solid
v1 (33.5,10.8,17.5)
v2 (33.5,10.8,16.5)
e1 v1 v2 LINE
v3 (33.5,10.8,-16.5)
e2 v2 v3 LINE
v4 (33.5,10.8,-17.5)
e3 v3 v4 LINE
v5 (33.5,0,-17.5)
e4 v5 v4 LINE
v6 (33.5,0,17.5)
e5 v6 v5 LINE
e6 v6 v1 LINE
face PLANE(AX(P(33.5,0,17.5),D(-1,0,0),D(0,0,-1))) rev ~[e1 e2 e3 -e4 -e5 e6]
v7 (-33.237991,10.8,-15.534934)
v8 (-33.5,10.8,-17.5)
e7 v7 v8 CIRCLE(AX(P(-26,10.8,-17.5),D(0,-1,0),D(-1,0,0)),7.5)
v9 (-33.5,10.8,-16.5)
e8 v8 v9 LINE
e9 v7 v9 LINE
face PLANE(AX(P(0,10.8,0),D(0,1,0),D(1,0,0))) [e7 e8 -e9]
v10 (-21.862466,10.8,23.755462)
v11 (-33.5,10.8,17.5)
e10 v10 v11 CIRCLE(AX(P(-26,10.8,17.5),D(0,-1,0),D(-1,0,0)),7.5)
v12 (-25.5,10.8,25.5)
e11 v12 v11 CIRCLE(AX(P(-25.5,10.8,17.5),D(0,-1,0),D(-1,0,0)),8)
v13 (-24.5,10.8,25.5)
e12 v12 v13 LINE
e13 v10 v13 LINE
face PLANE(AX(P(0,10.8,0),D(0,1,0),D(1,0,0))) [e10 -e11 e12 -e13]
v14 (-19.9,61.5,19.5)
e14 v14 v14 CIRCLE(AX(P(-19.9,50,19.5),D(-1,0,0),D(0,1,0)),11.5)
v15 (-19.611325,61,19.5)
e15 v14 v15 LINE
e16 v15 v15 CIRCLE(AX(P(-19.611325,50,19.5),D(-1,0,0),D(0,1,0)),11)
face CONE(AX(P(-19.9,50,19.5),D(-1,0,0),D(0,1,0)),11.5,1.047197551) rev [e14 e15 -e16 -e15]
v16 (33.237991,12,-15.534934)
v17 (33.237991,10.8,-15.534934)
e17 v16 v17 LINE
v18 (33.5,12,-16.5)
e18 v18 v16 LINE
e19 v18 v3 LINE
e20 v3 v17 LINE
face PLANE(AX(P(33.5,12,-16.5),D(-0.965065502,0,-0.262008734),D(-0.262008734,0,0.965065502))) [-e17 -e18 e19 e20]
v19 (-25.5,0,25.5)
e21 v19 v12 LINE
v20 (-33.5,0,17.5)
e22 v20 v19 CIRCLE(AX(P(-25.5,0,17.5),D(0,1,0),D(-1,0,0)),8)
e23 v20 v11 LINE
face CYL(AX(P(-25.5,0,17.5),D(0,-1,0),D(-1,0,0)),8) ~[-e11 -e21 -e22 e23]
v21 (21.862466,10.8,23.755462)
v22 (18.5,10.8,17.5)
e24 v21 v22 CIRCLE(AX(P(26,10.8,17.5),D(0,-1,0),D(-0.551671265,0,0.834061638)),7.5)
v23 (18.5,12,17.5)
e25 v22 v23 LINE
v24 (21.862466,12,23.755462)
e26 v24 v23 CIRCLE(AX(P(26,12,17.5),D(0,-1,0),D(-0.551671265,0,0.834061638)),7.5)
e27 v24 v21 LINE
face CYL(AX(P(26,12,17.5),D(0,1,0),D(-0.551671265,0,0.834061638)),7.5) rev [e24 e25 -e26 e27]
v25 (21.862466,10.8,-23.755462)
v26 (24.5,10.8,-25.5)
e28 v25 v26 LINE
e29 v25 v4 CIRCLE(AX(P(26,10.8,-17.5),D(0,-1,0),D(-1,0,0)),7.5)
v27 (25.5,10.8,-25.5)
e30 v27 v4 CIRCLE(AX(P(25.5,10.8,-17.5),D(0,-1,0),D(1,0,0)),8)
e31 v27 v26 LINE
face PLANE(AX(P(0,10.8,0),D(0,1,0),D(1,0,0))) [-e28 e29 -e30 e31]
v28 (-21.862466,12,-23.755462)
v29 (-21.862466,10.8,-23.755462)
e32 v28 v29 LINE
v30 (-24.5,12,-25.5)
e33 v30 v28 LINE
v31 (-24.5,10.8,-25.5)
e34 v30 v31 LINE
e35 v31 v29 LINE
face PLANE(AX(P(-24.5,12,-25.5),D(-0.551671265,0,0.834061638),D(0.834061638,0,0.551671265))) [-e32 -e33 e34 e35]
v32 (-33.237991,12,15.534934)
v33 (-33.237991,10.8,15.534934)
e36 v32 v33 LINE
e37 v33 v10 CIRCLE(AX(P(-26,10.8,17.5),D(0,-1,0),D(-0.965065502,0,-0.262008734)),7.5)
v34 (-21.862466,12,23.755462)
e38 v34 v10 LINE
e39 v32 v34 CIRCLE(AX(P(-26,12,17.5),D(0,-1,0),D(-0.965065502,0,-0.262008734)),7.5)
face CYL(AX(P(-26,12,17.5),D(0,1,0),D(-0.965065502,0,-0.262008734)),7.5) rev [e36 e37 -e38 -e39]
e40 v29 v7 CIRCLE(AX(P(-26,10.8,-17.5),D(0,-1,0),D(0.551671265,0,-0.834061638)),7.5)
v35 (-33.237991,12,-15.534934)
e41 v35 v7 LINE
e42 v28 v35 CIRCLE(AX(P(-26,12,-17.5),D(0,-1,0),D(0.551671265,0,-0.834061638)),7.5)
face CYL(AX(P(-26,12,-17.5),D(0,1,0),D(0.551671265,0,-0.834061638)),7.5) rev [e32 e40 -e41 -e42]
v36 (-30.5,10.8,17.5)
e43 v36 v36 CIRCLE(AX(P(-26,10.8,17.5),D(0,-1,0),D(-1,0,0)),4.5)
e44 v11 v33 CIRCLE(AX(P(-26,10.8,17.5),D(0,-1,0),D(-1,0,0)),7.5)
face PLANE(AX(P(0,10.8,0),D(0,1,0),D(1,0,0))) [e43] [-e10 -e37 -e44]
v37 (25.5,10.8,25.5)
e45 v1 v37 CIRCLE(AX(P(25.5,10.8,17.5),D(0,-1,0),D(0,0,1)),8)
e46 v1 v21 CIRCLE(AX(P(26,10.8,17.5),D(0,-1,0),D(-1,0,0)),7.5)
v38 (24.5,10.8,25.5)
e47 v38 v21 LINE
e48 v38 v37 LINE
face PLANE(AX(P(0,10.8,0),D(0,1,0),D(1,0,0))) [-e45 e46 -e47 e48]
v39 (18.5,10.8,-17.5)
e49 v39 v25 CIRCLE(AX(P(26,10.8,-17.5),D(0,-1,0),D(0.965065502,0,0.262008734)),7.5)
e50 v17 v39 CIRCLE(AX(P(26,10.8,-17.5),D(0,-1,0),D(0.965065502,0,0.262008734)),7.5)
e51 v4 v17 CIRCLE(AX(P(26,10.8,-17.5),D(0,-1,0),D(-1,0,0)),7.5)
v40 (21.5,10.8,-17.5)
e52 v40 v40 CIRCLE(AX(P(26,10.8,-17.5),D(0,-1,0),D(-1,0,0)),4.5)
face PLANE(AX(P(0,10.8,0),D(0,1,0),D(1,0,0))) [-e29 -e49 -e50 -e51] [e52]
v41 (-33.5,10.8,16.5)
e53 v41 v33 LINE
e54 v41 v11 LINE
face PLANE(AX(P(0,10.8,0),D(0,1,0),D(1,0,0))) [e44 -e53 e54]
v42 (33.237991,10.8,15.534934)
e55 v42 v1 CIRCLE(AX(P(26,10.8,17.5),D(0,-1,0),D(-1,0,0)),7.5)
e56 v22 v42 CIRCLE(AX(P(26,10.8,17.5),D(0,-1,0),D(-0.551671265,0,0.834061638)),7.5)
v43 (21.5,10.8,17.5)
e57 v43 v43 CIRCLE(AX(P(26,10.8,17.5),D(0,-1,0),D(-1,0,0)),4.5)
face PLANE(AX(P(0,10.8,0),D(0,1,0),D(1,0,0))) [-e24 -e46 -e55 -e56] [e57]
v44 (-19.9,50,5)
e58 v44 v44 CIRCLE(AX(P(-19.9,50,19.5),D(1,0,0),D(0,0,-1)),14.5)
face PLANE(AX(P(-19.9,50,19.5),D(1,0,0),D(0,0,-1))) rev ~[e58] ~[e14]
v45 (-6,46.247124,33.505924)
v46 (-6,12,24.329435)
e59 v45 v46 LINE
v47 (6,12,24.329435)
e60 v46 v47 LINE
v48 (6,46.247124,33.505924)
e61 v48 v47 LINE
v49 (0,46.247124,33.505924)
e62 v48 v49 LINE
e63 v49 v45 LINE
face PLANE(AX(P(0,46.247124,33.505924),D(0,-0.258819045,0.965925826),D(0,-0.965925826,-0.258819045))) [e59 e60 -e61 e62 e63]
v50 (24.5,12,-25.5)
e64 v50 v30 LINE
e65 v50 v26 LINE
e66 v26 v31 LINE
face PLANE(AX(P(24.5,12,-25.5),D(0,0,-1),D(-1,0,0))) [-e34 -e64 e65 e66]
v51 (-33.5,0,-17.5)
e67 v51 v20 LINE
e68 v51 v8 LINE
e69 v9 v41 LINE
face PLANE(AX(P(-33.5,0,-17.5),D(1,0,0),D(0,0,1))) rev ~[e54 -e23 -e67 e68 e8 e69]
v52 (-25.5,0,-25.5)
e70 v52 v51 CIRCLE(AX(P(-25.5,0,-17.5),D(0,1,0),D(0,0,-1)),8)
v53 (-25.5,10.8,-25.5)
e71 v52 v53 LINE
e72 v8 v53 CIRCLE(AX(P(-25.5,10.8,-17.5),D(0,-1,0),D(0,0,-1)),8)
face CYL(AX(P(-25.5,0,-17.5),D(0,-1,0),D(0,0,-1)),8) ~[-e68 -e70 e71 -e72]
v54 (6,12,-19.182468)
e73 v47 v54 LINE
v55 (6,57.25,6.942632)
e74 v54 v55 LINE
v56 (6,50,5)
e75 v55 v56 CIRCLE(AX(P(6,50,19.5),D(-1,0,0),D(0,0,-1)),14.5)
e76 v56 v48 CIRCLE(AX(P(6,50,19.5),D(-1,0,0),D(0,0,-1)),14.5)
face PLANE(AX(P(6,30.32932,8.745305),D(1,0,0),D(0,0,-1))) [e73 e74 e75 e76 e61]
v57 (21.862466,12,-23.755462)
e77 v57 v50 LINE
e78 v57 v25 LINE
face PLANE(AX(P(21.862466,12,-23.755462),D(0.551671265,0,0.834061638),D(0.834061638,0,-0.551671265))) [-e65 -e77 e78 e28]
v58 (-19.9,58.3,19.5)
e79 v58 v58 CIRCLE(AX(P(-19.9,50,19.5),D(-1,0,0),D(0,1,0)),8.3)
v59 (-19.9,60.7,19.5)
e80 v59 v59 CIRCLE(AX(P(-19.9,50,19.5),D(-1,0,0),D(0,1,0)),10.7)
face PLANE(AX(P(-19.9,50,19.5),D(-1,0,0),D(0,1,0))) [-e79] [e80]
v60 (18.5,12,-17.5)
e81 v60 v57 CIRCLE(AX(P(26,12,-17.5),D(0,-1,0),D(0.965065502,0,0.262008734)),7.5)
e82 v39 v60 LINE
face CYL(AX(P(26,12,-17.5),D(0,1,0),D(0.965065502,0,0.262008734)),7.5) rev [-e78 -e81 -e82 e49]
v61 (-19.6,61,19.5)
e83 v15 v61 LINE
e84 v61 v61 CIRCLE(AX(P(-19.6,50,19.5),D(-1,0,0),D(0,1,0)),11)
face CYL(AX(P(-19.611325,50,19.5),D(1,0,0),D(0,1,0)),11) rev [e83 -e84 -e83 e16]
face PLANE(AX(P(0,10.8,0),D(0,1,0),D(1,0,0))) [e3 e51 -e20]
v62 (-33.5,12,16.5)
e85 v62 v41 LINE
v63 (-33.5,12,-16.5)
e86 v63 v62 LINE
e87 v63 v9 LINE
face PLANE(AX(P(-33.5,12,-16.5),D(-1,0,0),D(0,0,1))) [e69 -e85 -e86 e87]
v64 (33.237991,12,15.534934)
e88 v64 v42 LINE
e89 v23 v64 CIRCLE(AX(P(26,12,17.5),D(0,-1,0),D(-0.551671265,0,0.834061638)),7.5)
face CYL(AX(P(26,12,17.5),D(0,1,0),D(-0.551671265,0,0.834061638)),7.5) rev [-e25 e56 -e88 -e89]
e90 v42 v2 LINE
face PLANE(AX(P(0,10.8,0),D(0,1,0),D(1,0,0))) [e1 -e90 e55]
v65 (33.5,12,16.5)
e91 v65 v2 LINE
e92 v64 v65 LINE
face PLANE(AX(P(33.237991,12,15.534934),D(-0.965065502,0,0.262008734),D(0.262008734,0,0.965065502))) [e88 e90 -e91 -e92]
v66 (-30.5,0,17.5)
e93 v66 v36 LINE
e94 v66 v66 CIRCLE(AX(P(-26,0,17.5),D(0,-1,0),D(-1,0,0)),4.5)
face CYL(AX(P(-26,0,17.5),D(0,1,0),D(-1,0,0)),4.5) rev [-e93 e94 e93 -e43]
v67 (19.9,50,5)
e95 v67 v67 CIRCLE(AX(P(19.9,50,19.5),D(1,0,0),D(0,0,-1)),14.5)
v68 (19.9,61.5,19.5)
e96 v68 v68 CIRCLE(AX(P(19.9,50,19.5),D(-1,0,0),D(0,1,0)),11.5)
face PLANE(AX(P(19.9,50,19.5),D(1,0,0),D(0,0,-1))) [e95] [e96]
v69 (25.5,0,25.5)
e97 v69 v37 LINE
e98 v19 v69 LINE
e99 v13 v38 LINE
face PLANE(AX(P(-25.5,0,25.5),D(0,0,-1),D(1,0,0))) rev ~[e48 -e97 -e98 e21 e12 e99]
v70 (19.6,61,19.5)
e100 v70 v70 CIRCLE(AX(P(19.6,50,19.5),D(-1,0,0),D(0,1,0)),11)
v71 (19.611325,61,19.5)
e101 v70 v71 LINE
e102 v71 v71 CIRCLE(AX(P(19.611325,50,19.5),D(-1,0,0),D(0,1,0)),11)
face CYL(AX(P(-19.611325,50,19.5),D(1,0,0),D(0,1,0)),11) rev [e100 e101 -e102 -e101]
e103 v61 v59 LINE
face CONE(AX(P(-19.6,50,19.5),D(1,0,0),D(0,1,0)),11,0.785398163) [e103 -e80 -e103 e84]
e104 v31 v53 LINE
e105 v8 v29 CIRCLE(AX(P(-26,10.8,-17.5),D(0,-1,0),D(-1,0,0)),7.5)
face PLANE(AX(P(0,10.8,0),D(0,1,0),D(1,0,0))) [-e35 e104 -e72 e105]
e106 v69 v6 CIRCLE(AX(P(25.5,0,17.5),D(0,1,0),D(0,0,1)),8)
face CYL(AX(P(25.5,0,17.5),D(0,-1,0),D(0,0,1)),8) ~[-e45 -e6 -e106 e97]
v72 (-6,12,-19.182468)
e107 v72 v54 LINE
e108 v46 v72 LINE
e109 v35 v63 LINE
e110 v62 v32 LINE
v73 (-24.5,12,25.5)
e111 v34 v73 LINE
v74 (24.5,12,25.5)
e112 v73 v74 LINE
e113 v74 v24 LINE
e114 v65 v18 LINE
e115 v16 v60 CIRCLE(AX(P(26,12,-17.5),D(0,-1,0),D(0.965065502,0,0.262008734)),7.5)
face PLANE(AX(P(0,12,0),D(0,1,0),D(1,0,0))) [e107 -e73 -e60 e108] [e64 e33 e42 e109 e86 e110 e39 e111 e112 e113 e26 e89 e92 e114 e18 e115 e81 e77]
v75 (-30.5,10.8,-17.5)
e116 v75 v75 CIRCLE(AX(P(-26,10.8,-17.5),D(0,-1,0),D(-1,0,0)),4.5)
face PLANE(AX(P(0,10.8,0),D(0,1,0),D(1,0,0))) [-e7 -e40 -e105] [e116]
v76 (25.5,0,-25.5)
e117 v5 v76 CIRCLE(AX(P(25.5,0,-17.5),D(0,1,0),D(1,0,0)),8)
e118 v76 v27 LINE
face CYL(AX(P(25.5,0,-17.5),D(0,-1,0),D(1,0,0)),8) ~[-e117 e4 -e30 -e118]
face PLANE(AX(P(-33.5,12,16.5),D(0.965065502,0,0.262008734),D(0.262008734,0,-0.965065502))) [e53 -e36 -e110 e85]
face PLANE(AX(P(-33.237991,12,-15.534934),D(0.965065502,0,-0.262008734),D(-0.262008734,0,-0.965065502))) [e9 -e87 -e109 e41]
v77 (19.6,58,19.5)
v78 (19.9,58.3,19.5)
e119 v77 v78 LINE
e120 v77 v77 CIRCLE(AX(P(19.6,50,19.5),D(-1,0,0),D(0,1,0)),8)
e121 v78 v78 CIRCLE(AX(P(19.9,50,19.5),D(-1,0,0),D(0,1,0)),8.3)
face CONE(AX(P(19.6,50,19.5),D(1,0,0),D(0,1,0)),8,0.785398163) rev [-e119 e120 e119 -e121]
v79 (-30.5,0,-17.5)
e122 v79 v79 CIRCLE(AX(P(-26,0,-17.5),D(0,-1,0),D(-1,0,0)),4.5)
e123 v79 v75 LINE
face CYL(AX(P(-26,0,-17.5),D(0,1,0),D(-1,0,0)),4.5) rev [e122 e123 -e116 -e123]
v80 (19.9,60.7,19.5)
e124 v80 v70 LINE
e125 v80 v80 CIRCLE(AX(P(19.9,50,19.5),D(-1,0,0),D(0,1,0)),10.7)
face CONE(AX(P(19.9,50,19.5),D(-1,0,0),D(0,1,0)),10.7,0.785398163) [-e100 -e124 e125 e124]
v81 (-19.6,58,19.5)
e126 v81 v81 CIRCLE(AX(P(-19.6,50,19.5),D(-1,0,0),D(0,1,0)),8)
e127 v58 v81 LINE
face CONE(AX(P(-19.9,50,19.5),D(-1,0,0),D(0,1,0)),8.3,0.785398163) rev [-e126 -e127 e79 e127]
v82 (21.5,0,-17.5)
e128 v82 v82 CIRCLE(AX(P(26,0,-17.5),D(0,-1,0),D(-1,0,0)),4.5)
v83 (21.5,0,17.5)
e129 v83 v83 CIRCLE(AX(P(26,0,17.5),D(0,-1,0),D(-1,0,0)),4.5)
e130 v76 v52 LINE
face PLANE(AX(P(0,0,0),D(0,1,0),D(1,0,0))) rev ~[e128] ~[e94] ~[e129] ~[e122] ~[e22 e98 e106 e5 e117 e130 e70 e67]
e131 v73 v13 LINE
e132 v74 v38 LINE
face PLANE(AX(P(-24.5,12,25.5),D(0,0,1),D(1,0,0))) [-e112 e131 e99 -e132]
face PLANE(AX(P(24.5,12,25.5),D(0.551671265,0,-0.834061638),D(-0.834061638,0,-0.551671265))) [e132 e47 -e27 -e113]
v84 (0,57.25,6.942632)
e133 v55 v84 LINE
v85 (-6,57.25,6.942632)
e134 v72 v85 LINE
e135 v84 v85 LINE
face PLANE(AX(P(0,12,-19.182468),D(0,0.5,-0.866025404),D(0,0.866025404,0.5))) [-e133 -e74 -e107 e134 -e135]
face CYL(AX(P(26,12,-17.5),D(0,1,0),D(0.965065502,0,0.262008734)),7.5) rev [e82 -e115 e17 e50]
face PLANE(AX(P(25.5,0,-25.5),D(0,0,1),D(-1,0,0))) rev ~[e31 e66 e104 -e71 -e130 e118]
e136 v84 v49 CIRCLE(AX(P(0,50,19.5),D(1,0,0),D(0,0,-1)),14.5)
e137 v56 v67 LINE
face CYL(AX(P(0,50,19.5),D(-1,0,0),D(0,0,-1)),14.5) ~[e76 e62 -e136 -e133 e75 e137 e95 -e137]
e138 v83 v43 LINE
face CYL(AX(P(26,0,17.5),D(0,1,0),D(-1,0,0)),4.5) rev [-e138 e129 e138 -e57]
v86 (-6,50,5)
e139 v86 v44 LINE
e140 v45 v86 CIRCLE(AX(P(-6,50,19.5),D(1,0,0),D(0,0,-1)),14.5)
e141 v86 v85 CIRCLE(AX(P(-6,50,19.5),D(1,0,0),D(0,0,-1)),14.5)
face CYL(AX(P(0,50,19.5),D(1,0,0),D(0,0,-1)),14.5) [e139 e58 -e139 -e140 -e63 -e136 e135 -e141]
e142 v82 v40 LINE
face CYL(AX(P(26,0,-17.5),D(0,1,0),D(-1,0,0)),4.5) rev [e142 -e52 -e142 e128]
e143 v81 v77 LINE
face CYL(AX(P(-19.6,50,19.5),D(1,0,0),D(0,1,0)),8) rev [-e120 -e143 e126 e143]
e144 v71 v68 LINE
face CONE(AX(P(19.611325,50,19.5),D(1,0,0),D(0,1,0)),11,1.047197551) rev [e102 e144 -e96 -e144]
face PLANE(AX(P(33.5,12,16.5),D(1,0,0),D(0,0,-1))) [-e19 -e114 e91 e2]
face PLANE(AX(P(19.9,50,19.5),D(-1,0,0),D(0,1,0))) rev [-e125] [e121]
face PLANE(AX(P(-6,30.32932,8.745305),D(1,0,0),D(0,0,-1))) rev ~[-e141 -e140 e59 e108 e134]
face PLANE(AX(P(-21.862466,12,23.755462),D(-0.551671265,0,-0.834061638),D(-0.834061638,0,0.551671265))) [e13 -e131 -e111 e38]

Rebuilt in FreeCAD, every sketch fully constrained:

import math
import FreeCAD as App
import Part
import Sketcher
Q = App.Units.Quantity

doc = App.newDocument("Part")
params = doc.addObject("Spreadsheet::Sheet", "Params")
for row, (alias, value) in enumerate([
    ("sketch1_radius", "8 mm"),
    ("sketch1_width", "51 mm"),
    ("sketch1_height", "35 mm"),
    ("pad1_length", "12 mm"),
    ("pad2_length", "6 mm"),
    ("pad2_length2", "6 mm"),
    ("sketch3_diameter", "29 mm"),
    ("pad3_length", "19.9 mm"),
    ("pad3_length2", "19.9 mm"),
    ("sketch4_radius", "7.5 mm"),
    ("sketch4_width", "134 mm"),
    ("sketch4_width2", "49 mm"),
    ("sketch4_height", "102 mm"),
    ("sketch4_height2", "33 mm"),
    ("pocket1_length", "1.2 mm"),
    ("sketch5_width", "3 mm"),
    ("sketch5_height", "12 mm"),
    ("sketch5_width2", "4.5 mm"),
    ("sketch5_height2", "1.2 mm"),
    ("groove_angle", "360 deg"),
    ("sketch6_width", "3 mm"),
    ("sketch6_height", "12 mm"),
    ("sketch6_width2", "4.5 mm"),
    ("sketch6_height2", "1.2 mm"),
    ("groove2_angle", "360 deg"),
    ("sketch7_width", "3 mm"),
    ("sketch7_height", "12 mm"),
    ("sketch7_width2", "4.5 mm"),
    ("sketch7_height2", "1.2 mm"),
    ("groove3_angle", "360 deg"),
    ("sketch8_width", "3 mm"),
    ("sketch8_height", "12 mm"),
    ("sketch8_width2", "4.5 mm"),
    ("sketch8_height2", "1.2 mm"),
    ("groove4_angle", "360 deg"),
    ("sketch9_width", "39.8 mm"),
    ("sketch9_height", "11.5 mm"),
    ("groove5_angle", "360 deg"),
    ("sketch10_width", "39.2 mm"),
    ("sketch10_width2", "39.8 mm"),
    ("sketch10_height", "2.4 mm"),
    ("revolution_angle", "360 deg"),
], start=1):
    params.set(f"A{row}", alias)
    params.set(f"B{row}", "=" + value)
    params.setAlias(f"B{row}", alias)

body = doc.addObject("PartDesign::Body", "Body")

sketch1 = body.newObject("Sketcher::SketchObject", "Sketch")
sketch1.AttachmentSupport = (doc.getObject("XZ_Plane"), [""])
sketch1.MapMode = "FlatFace"
sketch1.addGeometry(Part.LineSegment(App.Vector(-26, 26, 0), App.Vector(26, 26, 0)), False)
sketch1.addGeometry(Part.ArcOfCircle(Part.Circle(App.Vector(25, 17, 0), App.Vector(0, 0, 1), 8), math.radians(0), math.radians(90)), False)
sketch1.addGeometry(Part.LineSegment(App.Vector(34, 18, 0), App.Vector(34, -18, 0)), False)
sketch1.addGeometry(Part.ArcOfCircle(Part.Circle(App.Vector(25, -17, 0), App.Vector(0, 0, 1), 8), math.radians(-90), math.radians(0)), False)
sketch1.addGeometry(Part.LineSegment(App.Vector(26, -26, 0), App.Vector(-26, -26, 0)), False)
sketch1.addGeometry(Part.ArcOfCircle(Part.Circle(App.Vector(-25, -17, 0), App.Vector(0, 0, 1), 8), math.radians(-180), math.radians(-90)), False)
sketch1.addGeometry(Part.LineSegment(App.Vector(-34, -18, 0), App.Vector(-34, 18, 0)), False)
sketch1.addGeometry(Part.ArcOfCircle(Part.Circle(App.Vector(-25, 17, 0), App.Vector(0, 0, 1), 8), math.radians(90), math.radians(180)), False)
sketch1.addConstraint(Sketcher.Constraint("Tangent", 0, 2, 1, 2))
sketch1.addConstraint(Sketcher.Constraint("Tangent", 1, 1, 2, 1))
sketch1.addConstraint(Sketcher.Constraint("Tangent", 2, 2, 3, 2))
sketch1.addConstraint(Sketcher.Constraint("Tangent", 3, 1, 4, 1))
sketch1.addConstraint(Sketcher.Constraint("Tangent", 4, 2, 5, 2))
sketch1.addConstraint(Sketcher.Constraint("Tangent", 5, 1, 6, 1))
sketch1.addConstraint(Sketcher.Constraint("Tangent", 6, 2, 7, 2))
sketch1.addConstraint(Sketcher.Constraint("Tangent", 7, 1, 0, 1))
sketch1.addConstraint(Sketcher.Constraint("Horizontal", 0))
sketch1.addConstraint(Sketcher.Constraint("Vertical", 2))
sketch1.addConstraint(Sketcher.Constraint("Horizontal", 4))
sketch1.addConstraint(Sketcher.Constraint("Vertical", 6))
sketch1.addConstraint(Sketcher.Constraint("Equal", 1, 3))
sketch1.addConstraint(Sketcher.Constraint("Equal", 3, 5))
sketch1.addConstraint(Sketcher.Constraint("Equal", 5, 7))
sketch1.addConstraint(Sketcher.Constraint("Symmetric", 1, 3, 5, 3, -1, 1))
sketch1.addConstraint(Sketcher.Constraint("Radius", 1, 8.0))
sketch1.addConstraint(Sketcher.Constraint("DistanceX", 0, 1, 0, 2, 51.0))
sketch1.addConstraint(Sketcher.Constraint("DistanceY", 2, 2, 2, 1, 35.0))
sketch1.setExpression("Constraints[16]", "Params.sketch1_radius")
sketch1.setExpression("Constraints[17]", "Params.sketch1_width")
sketch1.setExpression("Constraints[18]", "Params.sketch1_height")
pad1 = body.newObject("PartDesign::Pad", "Pad")
pad1.Profile = sketch1
pad1.setExpression("Length", "Params.pad1_length")
pad1.Reversed = True

sketch2 = body.newObject("Sketcher::SketchObject", "Sketch001")
sketch2.AttachmentSupport = (doc.getObject("YZ_Plane"), [""])
sketch2.MapMode = "FlatFace"
sketch2.addGeometry(Part.LineSegment(App.Vector(46, 34, 0), App.Vector(12, 24, 0)), False)
sketch2.addGeometry(Part.LineSegment(App.Vector(12, 24, 0), App.Vector(12, -19, 0)), False)
sketch2.addGeometry(Part.LineSegment(App.Vector(12, -19, 0), App.Vector(57, 7, 0)), False)
sketch2.addGeometry(Part.LineSegment(App.Vector(57, 7, 0), App.Vector(46, 34, 0)), False)
sketch2.addConstraint(Sketcher.Constraint("Coincident", 0, 2, 1, 1))
sketch2.addConstraint(Sketcher.Constraint("Coincident", 1, 2, 2, 1))
sketch2.addConstraint(Sketcher.Constraint("Coincident", 2, 2, 3, 1))
sketch2.addConstraint(Sketcher.Constraint("Coincident", 3, 2, 0, 1))
sketch2.addConstraint(Sketcher.Constraint("Vertical", 1))
sketch2.addConstraint(Sketcher.Constraint("Angle", 0, Q("-165 deg")))
sketch2.addConstraint(Sketcher.Constraint("Angle", 2, Q("30 deg")))
sketch2.addConstraint(Sketcher.Constraint("DistanceX", -1, 1, 0, 2, 12.0))
sketch2.addConstraint(Sketcher.Constraint("Angle", 3, Q("112.5 deg")))
sketch2.addConstraint(Sketcher.Constraint("DistanceX", -1, 1, 2, 2, 57.25))
sketch2.addConstraint(Sketcher.Constraint("Distance", 3, 28.751901))
sketch2.addConstraint(Sketcher.Constraint("DistanceY", 1, 2, -1, 1, 19.182468))
pad2 = body.newObject("PartDesign::Pad", "Pad001")
pad2.Profile = sketch2
pad2.Type = "TwoLengths"
pad2.setExpression("Length", "Params.pad2_length")
pad2.setExpression("Length2", "Params.pad2_length2")

sketch3 = body.newObject("Sketcher::SketchObject", "Sketch002")
sketch3.AttachmentSupport = (doc.getObject("YZ_Plane"), [""])
sketch3.MapMode = "FlatFace"
sketch3.addGeometry(Part.Circle(App.Vector(50, 20, 0), App.Vector(0, 0, 1), 14), False)
sketch3.addConstraint(Sketcher.Constraint("Diameter", 0, 29.0))
sketch3.addConstraint(Sketcher.Constraint("DistanceX", -1, 1, 0, 3, 50.0))
sketch3.addConstraint(Sketcher.Constraint("DistanceY", -1, 1, 0, 3, 19.5))
sketch3.setExpression("Constraints[0]", "Params.sketch3_diameter")
pad3 = body.newObject("PartDesign::Pad", "Pad002")
pad3.Profile = sketch3
pad3.Type = "TwoLengths"
pad3.setExpression("Length", "Params.pad3_length")
pad3.setExpression("Length2", "Params.pad3_length2")

sketch4 = body.newObject("Sketcher::SketchObject", "Sketch003")
sketch4.AttachmentSupport = (doc.getObject("XZ_Plane"), [""])
sketch4.MapMode = "FlatFace"
sketch4.AttachmentOffset = App.Placement(App.Vector(0, 0, -12), App.Rotation())
sketch4.addGeometry(Part.LineSegment(App.Vector(-67, -51, 0), App.Vector(-67, 51, 0)), False)
sketch4.addGeometry(Part.LineSegment(App.Vector(-67, 51, 0), App.Vector(67, 51, 0)), False)
sketch4.addGeometry(Part.LineSegment(App.Vector(67, 51, 0), App.Vector(67, -51, 0)), False)
sketch4.addGeometry(Part.LineSegment(App.Vector(67, -51, 0), App.Vector(-67, -51, 0)), False)
sketch4.addGeometry(Part.LineSegment(App.Vector(-33.5, 16.5, 0), App.Vector(-33.5, -16.5, 0)), False)
sketch4.addGeometry(Part.LineSegment(App.Vector(-33.5, -16.5, 0), App.Vector(-33.2, -15.5, 0)), False)
sketch4.addGeometry(Part.ArcOfCircle(Part.Circle(App.Vector(-26, -17.5, 0), App.Vector(0, 0, 1), 7.5), math.radians(-57), math.radians(165)), False)
sketch4.addGeometry(Part.LineSegment(App.Vector(-21.9, -23.8, 0), App.Vector(-24.5, -25.5, 0)), False)
sketch4.addGeometry(Part.LineSegment(App.Vector(-24.5, -25.5, 0), App.Vector(24.5, -25.5, 0)), False)
sketch4.addGeometry(Part.LineSegment(App.Vector(24.5, -25.5, 0), App.Vector(21.9, -23.8, 0)), False)
sketch4.addGeometry(Part.ArcOfCircle(Part.Circle(App.Vector(26, -17.5, 0), App.Vector(0, 0, 1), 7.5), math.radians(15), math.radians(237)), False)
sketch4.addGeometry(Part.LineSegment(App.Vector(33.2, -15.5, 0), App.Vector(33.5, -16.5, 0)), False)
sketch4.addGeometry(Part.LineSegment(App.Vector(33.5, -16.5, 0), App.Vector(33.5, 16.5, 0)), False)
sketch4.addGeometry(Part.LineSegment(App.Vector(33.5, 16.5, 0), App.Vector(33.2, 15.5, 0)), False)
sketch4.addGeometry(Part.ArcOfCircle(Part.Circle(App.Vector(26, 17.5, 0), App.Vector(0, 0, 1), 7.5), math.radians(123), math.radians(345)), False)
sketch4.addGeometry(Part.LineSegment(App.Vector(21.9, 23.8, 0), App.Vector(24.5, 25.5, 0)), False)
sketch4.addGeometry(Part.LineSegment(App.Vector(24.5, 25.5, 0), App.Vector(-24.5, 25.5, 0)), False)
sketch4.addGeometry(Part.LineSegment(App.Vector(-24.5, 25.5, 0), App.Vector(-21.9, 23.8, 0)), False)
sketch4.addGeometry(Part.ArcOfCircle(Part.Circle(App.Vector(-26, 17.5, 0), App.Vector(0, 0, 1), 7.5), math.radians(-165), math.radians(57)), False)
sketch4.addGeometry(Part.LineSegment(App.Vector(-33.2, 15.5, 0), App.Vector(-33.5, 16.5, 0)), False)
sketch4.addConstraint(Sketcher.Constraint("Coincident", 0, 2, 1, 1))
sketch4.addConstraint(Sketcher.Constraint("Coincident", 1, 2, 2, 1))
sketch4.addConstraint(Sketcher.Constraint("Coincident", 2, 2, 3, 1))
sketch4.addConstraint(Sketcher.Constraint("Coincident", 3, 2, 0, 1))
sketch4.addConstraint(Sketcher.Constraint("Coincident", 4, 2, 5, 1))
sketch4.addConstraint(Sketcher.Constraint("Tangent", 5, 2, 6, 2))
sketch4.addConstraint(Sketcher.Constraint("Tangent", 6, 1, 7, 1))
sketch4.addConstraint(Sketcher.Constraint("Coincident", 7, 2, 8, 1))
sketch4.addConstraint(Sketcher.Constraint("Coincident", 8, 2, 9, 1))
sketch4.addConstraint(Sketcher.Constraint("Tangent", 9, 2, 10, 2))
sketch4.addConstraint(Sketcher.Constraint("Tangent", 10, 1, 11, 1))
sketch4.addConstraint(Sketcher.Constraint("Coincident", 11, 2, 12, 1))
sketch4.addConstraint(Sketcher.Constraint("Coincident", 12, 2, 13, 1))
sketch4.addConstraint(Sketcher.Constraint("Tangent", 13, 2, 14, 2))
sketch4.addConstraint(Sketcher.Constraint("Tangent", 14, 1, 15, 1))
sketch4.addConstraint(Sketcher.Constraint("Coincident", 15, 2, 16, 1))
sketch4.addConstraint(Sketcher.Constraint("Coincident", 16, 2, 17, 1))
sketch4.addConstraint(Sketcher.Constraint("Tangent", 17, 2, 18, 2))
sketch4.addConstraint(Sketcher.Constraint("Tangent", 18, 1, 19, 1))
sketch4.addConstraint(Sketcher.Constraint("Coincident", 19, 2, 4, 1))
sketch4.addConstraint(Sketcher.Constraint("Vertical", 0))
sketch4.addConstraint(Sketcher.Constraint("Horizontal", 1))
sketch4.addConstraint(Sketcher.Constraint("Vertical", 2))
sketch4.addConstraint(Sketcher.Constraint("Horizontal", 3))
sketch4.addConstraint(Sketcher.Constraint("Vertical", 4))
sketch4.addConstraint(Sketcher.Constraint("Horizontal", 8))
sketch4.addConstraint(Sketcher.Constraint("Vertical", 12))
sketch4.addConstraint(Sketcher.Constraint("Horizontal", 16))
sketch4.addConstraint(Sketcher.Constraint("Equal", 6, 10))
sketch4.addConstraint(Sketcher.Constraint("Equal", 10, 14))
sketch4.addConstraint(Sketcher.Constraint("Equal", 14, 18))
sketch4.addConstraint(Sketcher.Constraint("Symmetric", 6, 3, 14, 3, -1, 1))
sketch4.addConstraint(Sketcher.Constraint("Symmetric", 10, 3, 18, 3, -1, 1))
sketch4.addConstraint(Sketcher.Constraint("Symmetric", 0, 2, 2, 2, -1, 1))
sketch4.addConstraint(Sketcher.Constraint("Symmetric", 4, 2, 12, 2, -1, 1))
sketch4.addConstraint(Sketcher.Constraint("Symmetric", 7, 2, 15, 2, -1, 1))
sketch4.addConstraint(Sketcher.Constraint("Symmetric", 6, 3, 10, 3, -2))
sketch4.addConstraint(Sketcher.Constraint("Parallel", 9, 17))
sketch4.addConstraint(Sketcher.Constraint("Parallel", 11, 19))
sketch4.addConstraint(Sketcher.Constraint("Horizontal", 6, 1, 9, 2))
sketch4.addConstraint(Sketcher.Constraint("Horizontal", 5, 2, 10, 1))
sketch4.addConstraint(Sketcher.Constraint("Radius", 6, 7.5))
sketch4.addConstraint(Sketcher.Constraint("DistanceX", 1, 1, 1, 2, 134.0))
sketch4.addConstraint(Sketcher.Constraint("DistanceX", 8, 1, 8, 2, 49.0))
sketch4.addConstraint(Sketcher.Constraint("DistanceY", 0, 1, 0, 2, 102.0))
sketch4.addConstraint(Sketcher.Constraint("DistanceY", 4, 2, 4, 1, 33.0))
sketch4.addConstraint(Sketcher.Constraint("Distance", 5, 1.0))
sketch4.addConstraint(Sketcher.Constraint("DistanceX", 6, 3, -1, 1, 26.0))
sketch4.addConstraint(Sketcher.Constraint("DistanceY", 10, 3, 14, 3, 35.0))
sketch4.addConstraint(Sketcher.Constraint("DistanceY", 7, 2, 6, 3, 8.0))
sketch4.setExpression("Constraints[41]", "Params.sketch4_radius")
sketch4.setExpression("Constraints[42]", "Params.sketch4_width")
sketch4.setExpression("Constraints[43]", "Params.sketch4_width2")
sketch4.setExpression("Constraints[44]", "Params.sketch4_height")
sketch4.setExpression("Constraints[45]", "Params.sketch4_height2")
pocket1 = body.newObject("PartDesign::Pocket", "Pocket")
pocket1.Profile = sketch4
pocket1.setExpression("Length", "Params.pocket1_length")
pocket1.Reversed = True

sketch5 = body.newObject("Sketcher::SketchObject", "Sketch004")
sketch5.AttachmentSupport = (doc.getObject("XY_Plane"), [""])
sketch5.MapMode = "FlatFace"
sketch5.AttachmentOffset = App.Placement(App.Vector(0, 0, 17.5), App.Rotation())
sketch5.addGeometry(Part.LineSegment(App.Vector(-30.5, 0, 0), App.Vector(-26, 0, 0)), False)
sketch5.addGeometry(Part.LineSegment(App.Vector(-26, 0, 0), App.Vector(-26, 12, 0)), False)
sketch5.addGeometry(Part.LineSegment(App.Vector(-26, 12, 0), App.Vector(-33.5, 12, 0)), False)
sketch5.addGeometry(Part.LineSegment(App.Vector(-33.5, 12, 0), App.Vector(-33.5, 10.8, 0)), False)
sketch5.addGeometry(Part.LineSegment(App.Vector(-33.5, 10.8, 0), App.Vector(-30.5, 10.8, 0)), False)
sketch5.addGeometry(Part.LineSegment(App.Vector(-30.5, 10.8, 0), App.Vector(-30.5, 0, 0)), False)
sketch5.addGeometry(Part.LineSegment(App.Vector(-26, 12, 0), App.Vector(-26, 0, 0)), True)
sketch5.addConstraint(Sketcher.Constraint("Coincident", 0, 2, 1, 1))
sketch5.addConstraint(Sketcher.Constraint("Coincident", 1, 2, 2, 1))
sketch5.addConstraint(Sketcher.Constraint("Coincident", 2, 2, 3, 1))
sketch5.addConstraint(Sketcher.Constraint("Coincident", 3, 2, 4, 1))
sketch5.addConstraint(Sketcher.Constraint("Coincident", 4, 2, 5, 1))
sketch5.addConstraint(Sketcher.Constraint("Coincident", 5, 2, 0, 1))
sketch5.addConstraint(Sketcher.Constraint("Horizontal", 0))
sketch5.addConstraint(Sketcher.Constraint("Vertical", 1))
sketch5.addConstraint(Sketcher.Constraint("Horizontal", 2))
sketch5.addConstraint(Sketcher.Constraint("Vertical", 3))
sketch5.addConstraint(Sketcher.Constraint("Horizontal", 4))
sketch5.addConstraint(Sketcher.Constraint("Vertical", 5))
sketch5.addConstraint(Sketcher.Constraint("Vertical", 6))
sketch5.addConstraint(Sketcher.Constraint("Coincident", 6, 1, 1, 2))
sketch5.addConstraint(Sketcher.Constraint("PointOnObject", 0, 2, -1))
sketch5.addConstraint(Sketcher.Constraint("PointOnObject", 6, 2, -1))
sketch5.addConstraint(Sketcher.Constraint("DistanceX", 4, 1, 4, 2, 3.0))
sketch5.addConstraint(Sketcher.Constraint("DistanceY", 1, 1, 1, 2, 12.0))
sketch5.addConstraint(Sketcher.Constraint("DistanceX", 0, 1, 0, 2, 4.5))
sketch5.addConstraint(Sketcher.Constraint("DistanceY", 3, 2, 3, 1, 1.2))
sketch5.addConstraint(Sketcher.Constraint("DistanceX", 0, 2, -1, 1, 26.0))
sketch5.setExpression("Constraints[16]", "Params.sketch5_width")
sketch5.setExpression("Constraints[17]", "Params.sketch5_height")
sketch5.setExpression("Constraints[18]", "Params.sketch5_width2")
sketch5.setExpression("Constraints[19]", "Params.sketch5_height2")
groove = body.newObject("PartDesign::Groove", "Groove")
groove.Profile = sketch5
groove.ReferenceAxis = (sketch5, ["Axis0"])
groove.setExpression("Angle", "Params.groove_angle")

sketch6 = body.newObject("Sketcher::SketchObject", "Sketch005")
sketch6.AttachmentSupport = (doc.getObject("XY_Plane"), [""])
sketch6.MapMode = "FlatFace"
sketch6.AttachmentOffset = App.Placement(App.Vector(0, 0, -17.5), App.Rotation())
sketch6.addGeometry(Part.LineSegment(App.Vector(-30.5, 0, 0), App.Vector(-26, 0, 0)), False)
sketch6.addGeometry(Part.LineSegment(App.Vector(-26, 0, 0), App.Vector(-26, 12, 0)), False)
sketch6.addGeometry(Part.LineSegment(App.Vector(-26, 12, 0), App.Vector(-33.5, 12, 0)), False)
sketch6.addGeometry(Part.LineSegment(App.Vector(-33.5, 12, 0), App.Vector(-33.5, 10.8, 0)), False)
sketch6.addGeometry(Part.LineSegment(App.Vector(-33.5, 10.8, 0), App.Vector(-30.5, 10.8, 0)), False)
sketch6.addGeometry(Part.LineSegment(App.Vector(-30.5, 10.8, 0), App.Vector(-30.5, 0, 0)), False)
sketch6.addGeometry(Part.LineSegment(App.Vector(-26, 12, 0), App.Vector(-26, 0, 0)), True)
sketch6.addConstraint(Sketcher.Constraint("Coincident", 0, 2, 1, 1))
sketch6.addConstraint(Sketcher.Constraint("Coincident", 1, 2, 2, 1))
sketch6.addConstraint(Sketcher.Constraint("Coincident", 2, 2, 3, 1))
sketch6.addConstraint(Sketcher.Constraint("Coincident", 3, 2, 4, 1))
sketch6.addConstraint(Sketcher.Constraint("Coincident", 4, 2, 5, 1))
sketch6.addConstraint(Sketcher.Constraint("Coincident", 5, 2, 0, 1))
sketch6.addConstraint(Sketcher.Constraint("Horizontal", 0))
sketch6.addConstraint(Sketcher.Constraint("Vertical", 1))
sketch6.addConstraint(Sketcher.Constraint("Horizontal", 2))
sketch6.addConstraint(Sketcher.Constraint("Vertical", 3))
sketch6.addConstraint(Sketcher.Constraint("Horizontal", 4))
sketch6.addConstraint(Sketcher.Constraint("Vertical", 5))
sketch6.addConstraint(Sketcher.Constraint("Vertical", 6))
sketch6.addConstraint(Sketcher.Constraint("Coincident", 6, 1, 1, 2))
sketch6.addConstraint(Sketcher.Constraint("PointOnObject", 0, 2, -1))
sketch6.addConstraint(Sketcher.Constraint("PointOnObject", 6, 2, -1))
sketch6.addConstraint(Sketcher.Constraint("DistanceX", 4, 1, 4, 2, 3.0))
sketch6.addConstraint(Sketcher.Constraint("DistanceY", 1, 1, 1, 2, 12.0))
sketch6.addConstraint(Sketcher.Constraint("DistanceX", 0, 1, 0, 2, 4.5))
sketch6.addConstraint(Sketcher.Constraint("DistanceY", 3, 2, 3, 1, 1.2))
sketch6.addConstraint(Sketcher.Constraint("DistanceX", 0, 2, -1, 1, 26.0))
sketch6.setExpression("Constraints[16]", "Params.sketch6_width")
sketch6.setExpression("Constraints[17]", "Params.sketch6_height")
sketch6.setExpression("Constraints[18]", "Params.sketch6_width2")
sketch6.setExpression("Constraints[19]", "Params.sketch6_height2")
groove2 = body.newObject("PartDesign::Groove", "Groove001")
groove2.Profile = sketch6
groove2.ReferenceAxis = (sketch6, ["Axis0"])
groove2.setExpression("Angle", "Params.groove2_angle")

sketch7 = body.newObject("Sketcher::SketchObject", "Sketch006")
sketch7.AttachmentSupport = (doc.getObject("XY_Plane"), [""])
sketch7.MapMode = "FlatFace"
sketch7.AttachmentOffset = App.Placement(App.Vector(0, 0, 17.5), App.Rotation())
sketch7.addGeometry(Part.LineSegment(App.Vector(21.5, 0, 0), App.Vector(26, 0, 0)), False)
sketch7.addGeometry(Part.LineSegment(App.Vector(26, 0, 0), App.Vector(26, 12, 0)), False)
sketch7.addGeometry(Part.LineSegment(App.Vector(26, 12, 0), App.Vector(18.5, 12, 0)), False)
sketch7.addGeometry(Part.LineSegment(App.Vector(18.5, 12, 0), App.Vector(18.5, 10.8, 0)), False)
sketch7.addGeometry(Part.LineSegment(App.Vector(18.5, 10.8, 0), App.Vector(21.5, 10.8, 0)), False)
sketch7.addGeometry(Part.LineSegment(App.Vector(21.5, 10.8, 0), App.Vector(21.5, 0, 0)), False)
sketch7.addGeometry(Part.LineSegment(App.Vector(26, 12, 0), App.Vector(26, 0, 0)), True)
sketch7.addConstraint(Sketcher.Constraint("Coincident", 0, 2, 1, 1))
sketch7.addConstraint(Sketcher.Constraint("Coincident", 1, 2, 2, 1))
sketch7.addConstraint(Sketcher.Constraint("Coincident", 2, 2, 3, 1))
sketch7.addConstraint(Sketcher.Constraint("Coincident", 3, 2, 4, 1))
sketch7.addConstraint(Sketcher.Constraint("Coincident", 4, 2, 5, 1))
sketch7.addConstraint(Sketcher.Constraint("Coincident", 5, 2, 0, 1))
sketch7.addConstraint(Sketcher.Constraint("Horizontal", 0))
sketch7.addConstraint(Sketcher.Constraint("Vertical", 1))
sketch7.addConstraint(Sketcher.Constraint("Horizontal", 2))
sketch7.addConstraint(Sketcher.Constraint("Vertical", 3))
sketch7.addConstraint(Sketcher.Constraint("Horizontal", 4))
sketch7.addConstraint(Sketcher.Constraint("Vertical", 5))
sketch7.addConstraint(Sketcher.Constraint("Vertical", 6))
sketch7.addConstraint(Sketcher.Constraint("Coincident", 6, 1, 1, 2))
sketch7.addConstraint(Sketcher.Constraint("PointOnObject", 0, 2, -1))
sketch7.addConstraint(Sketcher.Constraint("PointOnObject", 6, 2, -1))
sketch7.addConstraint(Sketcher.Constraint("DistanceX", 4, 1, 4, 2, 3.0))
sketch7.addConstraint(Sketcher.Constraint("DistanceY", 1, 1, 1, 2, 12.0))
sketch7.addConstraint(Sketcher.Constraint("DistanceX", 0, 1, 0, 2, 4.5))
sketch7.addConstraint(Sketcher.Constraint("DistanceY", 3, 2, 3, 1, 1.2))
sketch7.addConstraint(Sketcher.Constraint("DistanceX", -1, 1, 0, 2, 26.0))
sketch7.setExpression("Constraints[16]", "Params.sketch7_width")
sketch7.setExpression("Constraints[17]", "Params.sketch7_height")
sketch7.setExpression("Constraints[18]", "Params.sketch7_width2")
sketch7.setExpression("Constraints[19]", "Params.sketch7_height2")
groove3 = body.newObject("PartDesign::Groove", "Groove002")
groove3.Profile = sketch7
groove3.ReferenceAxis = (sketch7, ["Axis0"])
groove3.setExpression("Angle", "Params.groove3_angle")

sketch8 = body.newObject("Sketcher::SketchObject", "Sketch007")
sketch8.AttachmentSupport = (doc.getObject("XY_Plane"), [""])
sketch8.MapMode = "FlatFace"
sketch8.AttachmentOffset = App.Placement(App.Vector(0, 0, -17.5), App.Rotation())
sketch8.addGeometry(Part.LineSegment(App.Vector(21.5, 0, 0), App.Vector(26, 0, 0)), False)
sketch8.addGeometry(Part.LineSegment(App.Vector(26, 0, 0), App.Vector(26, 12, 0)), False)
sketch8.addGeometry(Part.LineSegment(App.Vector(26, 12, 0), App.Vector(18.5, 12, 0)), False)
sketch8.addGeometry(Part.LineSegment(App.Vector(18.5, 12, 0), App.Vector(18.5, 10.8, 0)), False)
sketch8.addGeometry(Part.LineSegment(App.Vector(18.5, 10.8, 0), App.Vector(21.5, 10.8, 0)), False)
sketch8.addGeometry(Part.LineSegment(App.Vector(21.5, 10.8, 0), App.Vector(21.5, 0, 0)), False)
sketch8.addGeometry(Part.LineSegment(App.Vector(26, 12, 0), App.Vector(26, 0, 0)), True)
sketch8.addConstraint(Sketcher.Constraint("Coincident", 0, 2, 1, 1))
sketch8.addConstraint(Sketcher.Constraint("Coincident", 1, 2, 2, 1))
sketch8.addConstraint(Sketcher.Constraint("Coincident", 2, 2, 3, 1))
sketch8.addConstraint(Sketcher.Constraint("Coincident", 3, 2, 4, 1))
sketch8.addConstraint(Sketcher.Constraint("Coincident", 4, 2, 5, 1))
sketch8.addConstraint(Sketcher.Constraint("Coincident", 5, 2, 0, 1))
sketch8.addConstraint(Sketcher.Constraint("Horizontal", 0))
sketch8.addConstraint(Sketcher.Constraint("Vertical", 1))
sketch8.addConstraint(Sketcher.Constraint("Horizontal", 2))
sketch8.addConstraint(Sketcher.Constraint("Vertical", 3))
sketch8.addConstraint(Sketcher.Constraint("Horizontal", 4))
sketch8.addConstraint(Sketcher.Constraint("Vertical", 5))
sketch8.addConstraint(Sketcher.Constraint("Vertical", 6))
sketch8.addConstraint(Sketcher.Constraint("Coincident", 6, 1, 1, 2))
sketch8.addConstraint(Sketcher.Constraint("PointOnObject", 0, 2, -1))
sketch8.addConstraint(Sketcher.Constraint("PointOnObject", 6, 2, -1))
sketch8.addConstraint(Sketcher.Constraint("DistanceX", 4, 1, 4, 2, 3.0))
sketch8.addConstraint(Sketcher.Constraint("DistanceY", 1, 1, 1, 2, 12.0))
sketch8.addConstraint(Sketcher.Constraint("DistanceX", 0, 1, 0, 2, 4.5))
sketch8.addConstraint(Sketcher.Constraint("DistanceY", 3, 2, 3, 1, 1.2))
sketch8.addConstraint(Sketcher.Constraint("DistanceX", -1, 1, 0, 2, 26.0))
sketch8.setExpression("Constraints[16]", "Params.sketch8_width")
sketch8.setExpression("Constraints[17]", "Params.sketch8_height")
sketch8.setExpression("Constraints[18]", "Params.sketch8_width2")
sketch8.setExpression("Constraints[19]", "Params.sketch8_height2")
groove4 = body.newObject("PartDesign::Groove", "Groove003")
groove4.Profile = sketch8
groove4.ReferenceAxis = (sketch8, ["Axis0"])
groove4.setExpression("Angle", "Params.groove4_angle")

sketch9 = body.newObject("Sketcher::SketchObject", "Sketch008")
sketch9.AttachmentSupport = (doc.getObject("XY_Plane"), [""])
sketch9.MapMode = "FlatFace"
sketch9.AttachmentOffset = App.Placement(App.Vector(0, 0, 19.5), App.Rotation())
sketch9.addGeometry(Part.LineSegment(App.Vector(-19.9, 61.5, 0), App.Vector(-19.9, 50, 0)), False)
sketch9.addGeometry(Part.LineSegment(App.Vector(-19.9, 50, 0), App.Vector(19.9, 50, 0)), False)
sketch9.addGeometry(Part.LineSegment(App.Vector(19.9, 50, 0), App.Vector(19.9, 61.5, 0)), False)
sketch9.addGeometry(Part.LineSegment(App.Vector(19.9, 61.5, 0), App.Vector(19.6, 61, 0)), False)
sketch9.addGeometry(Part.LineSegment(App.Vector(19.6, 61, 0), App.Vector(-19.6, 61, 0)), False)
sketch9.addGeometry(Part.LineSegment(App.Vector(-19.6, 61, 0), App.Vector(-19.9, 61.5, 0)), False)
sketch9.addGeometry(Part.LineSegment(App.Vector(19.9, 50, 0), App.Vector(-19.9, 50, 0)), True)
sketch9.addConstraint(Sketcher.Constraint("Coincident", 0, 2, 1, 1))
sketch9.addConstraint(Sketcher.Constraint("Coincident", 1, 2, 2, 1))
sketch9.addConstraint(Sketcher.Constraint("Coincident", 2, 2, 3, 1))
sketch9.addConstraint(Sketcher.Constraint("Coincident", 3, 2, 4, 1))
sketch9.addConstraint(Sketcher.Constraint("Coincident", 4, 2, 5, 1))
sketch9.addConstraint(Sketcher.Constraint("Coincident", 5, 2, 0, 1))
sketch9.addConstraint(Sketcher.Constraint("Vertical", 0))
sketch9.addConstraint(Sketcher.Constraint("Horizontal", 1))
sketch9.addConstraint(Sketcher.Constraint("Vertical", 2))
sketch9.addConstraint(Sketcher.Constraint("Horizontal", 4))
sketch9.addConstraint(Sketcher.Constraint("Horizontal", 6))
sketch9.addConstraint(Sketcher.Constraint("Coincident", 6, 1, 1, 2))
sketch9.addConstraint(Sketcher.Constraint("Symmetric", 2, 2, 5, 2, -2))
sketch9.addConstraint(Sketcher.Constraint("Vertical", 5, 2, 6, 2))
sketch9.addConstraint(Sketcher.Constraint("Equal", 3, 5))
sketch9.addConstraint(Sketcher.Constraint("Angle", 3, Q("-120 deg")))
sketch9.addConstraint(Sketcher.Constraint("DistanceX", 1, 1, 1, 2, 39.8))
sketch9.addConstraint(Sketcher.Constraint("DistanceY", 0, 2, 0, 1, 11.5))
sketch9.addConstraint(Sketcher.Constraint("DistanceY", -1, 1, 0, 2, 50.0))
sketch9.addConstraint(Sketcher.Constraint("DistanceY", -1, 1, 3, 2, 61.0))
sketch9.setExpression("Constraints[16]", "Params.sketch9_width")
sketch9.setExpression("Constraints[17]", "Params.sketch9_height")
groove5 = body.newObject("PartDesign::Groove", "Groove004")
groove5.Profile = sketch9
groove5.ReferenceAxis = (sketch9, ["Axis0"])
groove5.setExpression("Angle", "Params.groove5_angle")

sketch10 = body.newObject("Sketcher::SketchObject", "Sketch009")
sketch10.AttachmentSupport = (doc.getObject("XY_Plane"), [""])
sketch10.MapMode = "FlatFace"
sketch10.AttachmentOffset = App.Placement(App.Vector(0, 0, 19.5), App.Rotation())
sketch10.addGeometry(Part.LineSegment(App.Vector(-19.9, 58.3, 0), App.Vector(-19.6, 58, 0)), False)
sketch10.addGeometry(Part.LineSegment(App.Vector(-19.6, 58, 0), App.Vector(19.6, 58, 0)), False)
sketch10.addGeometry(Part.LineSegment(App.Vector(19.6, 58, 0), App.Vector(19.9, 58.3, 0)), False)
sketch10.addGeometry(Part.LineSegment(App.Vector(19.9, 58.3, 0), App.Vector(19.9, 60.7, 0)), False)
sketch10.addGeometry(Part.LineSegment(App.Vector(19.9, 60.7, 0), App.Vector(19.6, 61, 0)), False)
sketch10.addGeometry(Part.LineSegment(App.Vector(19.6, 61, 0), App.Vector(-19.6, 61, 0)), False)
sketch10.addGeometry(Part.LineSegment(App.Vector(-19.6, 61, 0), App.Vector(-19.9, 60.7, 0)), False)
sketch10.addGeometry(Part.LineSegment(App.Vector(-19.9, 60.7, 0), App.Vector(-19.9, 58.3, 0)), False)
sketch10.addGeometry(Part.LineSegment(App.Vector(19.9, 50, 0), App.Vector(-19.9, 50, 0)), True)
sketch10.addConstraint(Sketcher.Constraint("Coincident", 0, 2, 1, 1))
sketch10.addConstraint(Sketcher.Constraint("Coincident", 1, 2, 2, 1))
sketch10.addConstraint(Sketcher.Constraint("Coincident", 2, 2, 3, 1))
sketch10.addConstraint(Sketcher.Constraint("Coincident", 3, 2, 4, 1))
sketch10.addConstraint(Sketcher.Constraint("Coincident", 4, 2, 5, 1))
sketch10.addConstraint(Sketcher.Constraint("Coincident", 5, 2, 6, 1))
sketch10.addConstraint(Sketcher.Constraint("Coincident", 6, 2, 7, 1))
sketch10.addConstraint(Sketcher.Constraint("Coincident", 7, 2, 0, 1))
sketch10.addConstraint(Sketcher.Constraint("Horizontal", 1))
sketch10.addConstraint(Sketcher.Constraint("Vertical", 3))
sketch10.addConstraint(Sketcher.Constraint("Horizontal", 5))
sketch10.addConstraint(Sketcher.Constraint("Vertical", 7))
sketch10.addConstraint(Sketcher.Constraint("Horizontal", 8))
sketch10.addConstraint(Sketcher.Constraint("Symmetric", 3, 2, 6, 2, -2))
sketch10.addConstraint(Sketcher.Constraint("Perpendicular", 0, 2))
sketch10.addConstraint(Sketcher.Constraint("Perpendicular", 2, 4))
sketch10.addConstraint(Sketcher.Constraint("Perpendicular", 4, 6))
sketch10.addConstraint(Sketcher.Constraint("Horizontal", 2, 2, 7, 2))
sketch10.addConstraint(Sketcher.Constraint("Vertical", 1, 2, 4, 2))
sketch10.addConstraint(Sketcher.Constraint("Vertical", 0, 2, 5, 2))
sketch10.addConstraint(Sketcher.Constraint("Vertical", 3, 2, 8, 1))
sketch10.addConstraint(Sketcher.Constraint("Vertical", 7, 2, 8, 2))
sketch10.addConstraint(Sketcher.Constraint("DistanceX", 1, 1, 1, 2, 39.2))
sketch10.addConstraint(Sketcher.Constraint("DistanceX", 8, 2, 8, 1, 39.8))
sketch10.addConstraint(Sketcher.Constraint("DistanceY", 3, 1, 3, 2, 2.4))
sketch10.addConstraint(Sketcher.Constraint("DistanceY", -1, 1, 0, 2, 58.0))
sketch10.addConstraint(Sketcher.Constraint("DistanceY", -1, 1, 8, 1, 50.0))
sketch10.setExpression("Constraints[22]", "Params.sketch10_width")
sketch10.setExpression("Constraints[23]", "Params.sketch10_width2")
sketch10.setExpression("Constraints[24]", "Params.sketch10_height")
revolution = body.newObject("PartDesign::Revolution", "Revolution")
revolution.Profile = sketch10
revolution.ReferenceAxis = (sketch10, ["Axis0"])
revolution.setExpression("Angle", "Params.revolution_angle")

doc.recompute()
